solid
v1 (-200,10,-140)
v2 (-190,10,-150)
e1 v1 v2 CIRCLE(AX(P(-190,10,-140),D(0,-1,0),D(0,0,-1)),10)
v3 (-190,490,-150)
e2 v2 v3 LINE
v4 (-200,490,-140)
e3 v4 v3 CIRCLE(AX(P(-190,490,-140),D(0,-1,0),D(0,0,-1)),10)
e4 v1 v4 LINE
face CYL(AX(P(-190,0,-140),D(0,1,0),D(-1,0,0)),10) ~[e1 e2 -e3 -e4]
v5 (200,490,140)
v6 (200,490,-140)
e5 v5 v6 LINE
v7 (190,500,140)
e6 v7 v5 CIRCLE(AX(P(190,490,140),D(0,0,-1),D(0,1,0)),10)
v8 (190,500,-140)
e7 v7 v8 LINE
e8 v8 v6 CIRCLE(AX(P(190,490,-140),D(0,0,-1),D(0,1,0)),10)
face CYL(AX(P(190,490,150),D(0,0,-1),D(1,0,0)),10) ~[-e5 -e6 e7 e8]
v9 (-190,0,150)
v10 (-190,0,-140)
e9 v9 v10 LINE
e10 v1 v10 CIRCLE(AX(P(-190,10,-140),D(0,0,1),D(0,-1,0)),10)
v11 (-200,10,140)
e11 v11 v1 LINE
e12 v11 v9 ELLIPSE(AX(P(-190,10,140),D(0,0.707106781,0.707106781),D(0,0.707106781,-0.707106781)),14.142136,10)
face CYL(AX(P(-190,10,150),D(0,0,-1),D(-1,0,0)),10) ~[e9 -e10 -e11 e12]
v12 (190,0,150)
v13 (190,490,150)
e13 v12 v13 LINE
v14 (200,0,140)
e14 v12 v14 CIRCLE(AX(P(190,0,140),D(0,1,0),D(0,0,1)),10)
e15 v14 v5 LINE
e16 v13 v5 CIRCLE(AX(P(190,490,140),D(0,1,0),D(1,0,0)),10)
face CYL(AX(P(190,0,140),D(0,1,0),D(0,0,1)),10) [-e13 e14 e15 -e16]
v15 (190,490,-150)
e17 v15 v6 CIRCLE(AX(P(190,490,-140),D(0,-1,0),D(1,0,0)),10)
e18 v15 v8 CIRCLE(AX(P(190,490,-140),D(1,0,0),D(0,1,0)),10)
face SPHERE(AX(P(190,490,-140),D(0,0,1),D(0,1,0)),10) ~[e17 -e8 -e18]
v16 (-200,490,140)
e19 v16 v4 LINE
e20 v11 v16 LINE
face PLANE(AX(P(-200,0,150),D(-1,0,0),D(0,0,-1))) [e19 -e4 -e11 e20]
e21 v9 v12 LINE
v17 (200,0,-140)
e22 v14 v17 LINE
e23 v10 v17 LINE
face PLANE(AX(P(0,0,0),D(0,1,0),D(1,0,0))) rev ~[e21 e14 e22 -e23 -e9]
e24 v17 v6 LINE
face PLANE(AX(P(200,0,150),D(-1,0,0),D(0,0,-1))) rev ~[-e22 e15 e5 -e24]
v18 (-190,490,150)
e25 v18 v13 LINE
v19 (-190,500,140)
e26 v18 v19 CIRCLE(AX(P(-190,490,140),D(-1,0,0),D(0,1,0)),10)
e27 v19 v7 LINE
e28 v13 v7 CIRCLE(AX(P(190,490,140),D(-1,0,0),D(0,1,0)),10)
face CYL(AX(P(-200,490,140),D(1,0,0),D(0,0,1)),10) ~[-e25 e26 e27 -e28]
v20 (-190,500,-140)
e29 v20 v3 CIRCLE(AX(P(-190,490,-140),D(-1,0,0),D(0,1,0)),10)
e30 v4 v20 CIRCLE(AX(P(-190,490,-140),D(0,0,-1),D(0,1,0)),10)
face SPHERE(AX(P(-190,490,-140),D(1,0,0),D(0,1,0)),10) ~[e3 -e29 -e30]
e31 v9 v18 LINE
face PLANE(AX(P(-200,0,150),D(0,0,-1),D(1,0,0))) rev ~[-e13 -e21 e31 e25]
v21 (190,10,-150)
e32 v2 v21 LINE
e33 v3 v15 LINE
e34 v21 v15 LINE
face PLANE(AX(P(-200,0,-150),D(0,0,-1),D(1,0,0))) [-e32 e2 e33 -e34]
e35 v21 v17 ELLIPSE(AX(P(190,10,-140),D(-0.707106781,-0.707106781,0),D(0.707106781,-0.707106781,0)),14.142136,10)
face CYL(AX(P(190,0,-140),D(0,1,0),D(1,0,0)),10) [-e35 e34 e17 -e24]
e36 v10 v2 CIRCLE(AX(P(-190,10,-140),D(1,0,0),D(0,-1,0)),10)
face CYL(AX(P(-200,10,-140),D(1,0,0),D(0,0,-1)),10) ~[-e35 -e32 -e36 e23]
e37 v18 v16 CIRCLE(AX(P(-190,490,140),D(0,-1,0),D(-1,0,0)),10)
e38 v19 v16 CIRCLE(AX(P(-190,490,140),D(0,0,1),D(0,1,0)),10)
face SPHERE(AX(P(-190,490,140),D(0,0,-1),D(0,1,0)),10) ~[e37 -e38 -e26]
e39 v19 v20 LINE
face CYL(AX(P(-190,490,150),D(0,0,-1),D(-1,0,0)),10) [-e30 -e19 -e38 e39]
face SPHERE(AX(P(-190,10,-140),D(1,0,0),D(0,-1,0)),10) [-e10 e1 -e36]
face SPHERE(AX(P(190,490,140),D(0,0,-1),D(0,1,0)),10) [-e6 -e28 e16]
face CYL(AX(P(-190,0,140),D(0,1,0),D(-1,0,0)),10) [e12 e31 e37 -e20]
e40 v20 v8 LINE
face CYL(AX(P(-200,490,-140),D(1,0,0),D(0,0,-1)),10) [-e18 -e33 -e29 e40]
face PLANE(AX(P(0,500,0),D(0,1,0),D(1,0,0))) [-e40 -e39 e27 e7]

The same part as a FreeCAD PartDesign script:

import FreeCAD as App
import Part
import Sketcher

V = App.Vector


def edges_at(feature, points):
    """Names of the edges that pass closest to the given points."""
    edges = feature.Shape.Edges
    near = lambda p: min(range(len(edges)), key=lambda i: edges[i].distToShape(Part.Vertex(*p))[0])
    return sorted({f"Edge{near(p) + 1}" for p in points})


def add_polygon(sketch, points):
    """Adds a closed chain of lines whose ends are joined by coincident constraints."""
    first, n = sketch.GeometryCount, len(points)
    for a, b in zip(points, points[1:] + points[:1]):
        sketch.addGeometry(Part.LineSegment(App.Vector(*a, 0), App.Vector(*b, 0)), False)
    for i in range(n):
        sketch.addConstraint(Sketcher.Constraint("Coincident", first + i, 2, first + (i + 1) % n, 1))

doc = App.newDocument("Part")
body = doc.addObject("PartDesign::Body", "Body")

# Sketch on XZ plane
sketch1 = doc.addObject("Sketcher::SketchObject", "Sketch")
body.addObject(sketch1)
sketch1.AttachmentSupport = (doc.XZ_Plane, [""])
sketch1.MapMode = "FlatFace"
add_polygon(sketch1, [(-200, -150), (-200, 150), (200, 150), (200, -150)])  # lines 0-3
sketch1.addConstraint(Sketcher.Constraint("Vertical", 0))
sketch1.addConstraint(Sketcher.Constraint("Horizontal", 1))
sketch1.addConstraint(Sketcher.Constraint("Vertical", 2))
sketch1.addConstraint(Sketcher.Constraint("Horizontal", 3))
sketch1.addConstraint(Sketcher.Constraint("Symmetric", 0, 2, 2, 2, -1, 1))
sketch1.addConstraint(Sketcher.Constraint("DistanceX", 1, 1, 1, 2, 400.0))
sketch1.addConstraint(Sketcher.Constraint("DistanceY", 0, 1, 0, 2, 300.0))
pad1 = doc.addObject("PartDesign::Pad", "Pad")
body.addObject(pad1)
pad1.Profile = sketch1
pad1.Length = 500
pad1.Reversed = True
doc.recompute()

fillet = doc.addObject("PartDesign::Fillet", "Fillet")
body.addObject(fillet)
fillet.Base = (pad1, edges_at(pad1, [
    (200, 500, 0),
    (0, 500, -150),
    (-200, 500, 0),
    (0, 0, -150),
    (-200, 0, 0),
    (0, 500, 150),
    (-200, 250, -150),
    (200, 250, -150),
    (200, 250, 150),
    (-200, 250, 150),
]))
fillet.Radius = 10

doc.recompute()
